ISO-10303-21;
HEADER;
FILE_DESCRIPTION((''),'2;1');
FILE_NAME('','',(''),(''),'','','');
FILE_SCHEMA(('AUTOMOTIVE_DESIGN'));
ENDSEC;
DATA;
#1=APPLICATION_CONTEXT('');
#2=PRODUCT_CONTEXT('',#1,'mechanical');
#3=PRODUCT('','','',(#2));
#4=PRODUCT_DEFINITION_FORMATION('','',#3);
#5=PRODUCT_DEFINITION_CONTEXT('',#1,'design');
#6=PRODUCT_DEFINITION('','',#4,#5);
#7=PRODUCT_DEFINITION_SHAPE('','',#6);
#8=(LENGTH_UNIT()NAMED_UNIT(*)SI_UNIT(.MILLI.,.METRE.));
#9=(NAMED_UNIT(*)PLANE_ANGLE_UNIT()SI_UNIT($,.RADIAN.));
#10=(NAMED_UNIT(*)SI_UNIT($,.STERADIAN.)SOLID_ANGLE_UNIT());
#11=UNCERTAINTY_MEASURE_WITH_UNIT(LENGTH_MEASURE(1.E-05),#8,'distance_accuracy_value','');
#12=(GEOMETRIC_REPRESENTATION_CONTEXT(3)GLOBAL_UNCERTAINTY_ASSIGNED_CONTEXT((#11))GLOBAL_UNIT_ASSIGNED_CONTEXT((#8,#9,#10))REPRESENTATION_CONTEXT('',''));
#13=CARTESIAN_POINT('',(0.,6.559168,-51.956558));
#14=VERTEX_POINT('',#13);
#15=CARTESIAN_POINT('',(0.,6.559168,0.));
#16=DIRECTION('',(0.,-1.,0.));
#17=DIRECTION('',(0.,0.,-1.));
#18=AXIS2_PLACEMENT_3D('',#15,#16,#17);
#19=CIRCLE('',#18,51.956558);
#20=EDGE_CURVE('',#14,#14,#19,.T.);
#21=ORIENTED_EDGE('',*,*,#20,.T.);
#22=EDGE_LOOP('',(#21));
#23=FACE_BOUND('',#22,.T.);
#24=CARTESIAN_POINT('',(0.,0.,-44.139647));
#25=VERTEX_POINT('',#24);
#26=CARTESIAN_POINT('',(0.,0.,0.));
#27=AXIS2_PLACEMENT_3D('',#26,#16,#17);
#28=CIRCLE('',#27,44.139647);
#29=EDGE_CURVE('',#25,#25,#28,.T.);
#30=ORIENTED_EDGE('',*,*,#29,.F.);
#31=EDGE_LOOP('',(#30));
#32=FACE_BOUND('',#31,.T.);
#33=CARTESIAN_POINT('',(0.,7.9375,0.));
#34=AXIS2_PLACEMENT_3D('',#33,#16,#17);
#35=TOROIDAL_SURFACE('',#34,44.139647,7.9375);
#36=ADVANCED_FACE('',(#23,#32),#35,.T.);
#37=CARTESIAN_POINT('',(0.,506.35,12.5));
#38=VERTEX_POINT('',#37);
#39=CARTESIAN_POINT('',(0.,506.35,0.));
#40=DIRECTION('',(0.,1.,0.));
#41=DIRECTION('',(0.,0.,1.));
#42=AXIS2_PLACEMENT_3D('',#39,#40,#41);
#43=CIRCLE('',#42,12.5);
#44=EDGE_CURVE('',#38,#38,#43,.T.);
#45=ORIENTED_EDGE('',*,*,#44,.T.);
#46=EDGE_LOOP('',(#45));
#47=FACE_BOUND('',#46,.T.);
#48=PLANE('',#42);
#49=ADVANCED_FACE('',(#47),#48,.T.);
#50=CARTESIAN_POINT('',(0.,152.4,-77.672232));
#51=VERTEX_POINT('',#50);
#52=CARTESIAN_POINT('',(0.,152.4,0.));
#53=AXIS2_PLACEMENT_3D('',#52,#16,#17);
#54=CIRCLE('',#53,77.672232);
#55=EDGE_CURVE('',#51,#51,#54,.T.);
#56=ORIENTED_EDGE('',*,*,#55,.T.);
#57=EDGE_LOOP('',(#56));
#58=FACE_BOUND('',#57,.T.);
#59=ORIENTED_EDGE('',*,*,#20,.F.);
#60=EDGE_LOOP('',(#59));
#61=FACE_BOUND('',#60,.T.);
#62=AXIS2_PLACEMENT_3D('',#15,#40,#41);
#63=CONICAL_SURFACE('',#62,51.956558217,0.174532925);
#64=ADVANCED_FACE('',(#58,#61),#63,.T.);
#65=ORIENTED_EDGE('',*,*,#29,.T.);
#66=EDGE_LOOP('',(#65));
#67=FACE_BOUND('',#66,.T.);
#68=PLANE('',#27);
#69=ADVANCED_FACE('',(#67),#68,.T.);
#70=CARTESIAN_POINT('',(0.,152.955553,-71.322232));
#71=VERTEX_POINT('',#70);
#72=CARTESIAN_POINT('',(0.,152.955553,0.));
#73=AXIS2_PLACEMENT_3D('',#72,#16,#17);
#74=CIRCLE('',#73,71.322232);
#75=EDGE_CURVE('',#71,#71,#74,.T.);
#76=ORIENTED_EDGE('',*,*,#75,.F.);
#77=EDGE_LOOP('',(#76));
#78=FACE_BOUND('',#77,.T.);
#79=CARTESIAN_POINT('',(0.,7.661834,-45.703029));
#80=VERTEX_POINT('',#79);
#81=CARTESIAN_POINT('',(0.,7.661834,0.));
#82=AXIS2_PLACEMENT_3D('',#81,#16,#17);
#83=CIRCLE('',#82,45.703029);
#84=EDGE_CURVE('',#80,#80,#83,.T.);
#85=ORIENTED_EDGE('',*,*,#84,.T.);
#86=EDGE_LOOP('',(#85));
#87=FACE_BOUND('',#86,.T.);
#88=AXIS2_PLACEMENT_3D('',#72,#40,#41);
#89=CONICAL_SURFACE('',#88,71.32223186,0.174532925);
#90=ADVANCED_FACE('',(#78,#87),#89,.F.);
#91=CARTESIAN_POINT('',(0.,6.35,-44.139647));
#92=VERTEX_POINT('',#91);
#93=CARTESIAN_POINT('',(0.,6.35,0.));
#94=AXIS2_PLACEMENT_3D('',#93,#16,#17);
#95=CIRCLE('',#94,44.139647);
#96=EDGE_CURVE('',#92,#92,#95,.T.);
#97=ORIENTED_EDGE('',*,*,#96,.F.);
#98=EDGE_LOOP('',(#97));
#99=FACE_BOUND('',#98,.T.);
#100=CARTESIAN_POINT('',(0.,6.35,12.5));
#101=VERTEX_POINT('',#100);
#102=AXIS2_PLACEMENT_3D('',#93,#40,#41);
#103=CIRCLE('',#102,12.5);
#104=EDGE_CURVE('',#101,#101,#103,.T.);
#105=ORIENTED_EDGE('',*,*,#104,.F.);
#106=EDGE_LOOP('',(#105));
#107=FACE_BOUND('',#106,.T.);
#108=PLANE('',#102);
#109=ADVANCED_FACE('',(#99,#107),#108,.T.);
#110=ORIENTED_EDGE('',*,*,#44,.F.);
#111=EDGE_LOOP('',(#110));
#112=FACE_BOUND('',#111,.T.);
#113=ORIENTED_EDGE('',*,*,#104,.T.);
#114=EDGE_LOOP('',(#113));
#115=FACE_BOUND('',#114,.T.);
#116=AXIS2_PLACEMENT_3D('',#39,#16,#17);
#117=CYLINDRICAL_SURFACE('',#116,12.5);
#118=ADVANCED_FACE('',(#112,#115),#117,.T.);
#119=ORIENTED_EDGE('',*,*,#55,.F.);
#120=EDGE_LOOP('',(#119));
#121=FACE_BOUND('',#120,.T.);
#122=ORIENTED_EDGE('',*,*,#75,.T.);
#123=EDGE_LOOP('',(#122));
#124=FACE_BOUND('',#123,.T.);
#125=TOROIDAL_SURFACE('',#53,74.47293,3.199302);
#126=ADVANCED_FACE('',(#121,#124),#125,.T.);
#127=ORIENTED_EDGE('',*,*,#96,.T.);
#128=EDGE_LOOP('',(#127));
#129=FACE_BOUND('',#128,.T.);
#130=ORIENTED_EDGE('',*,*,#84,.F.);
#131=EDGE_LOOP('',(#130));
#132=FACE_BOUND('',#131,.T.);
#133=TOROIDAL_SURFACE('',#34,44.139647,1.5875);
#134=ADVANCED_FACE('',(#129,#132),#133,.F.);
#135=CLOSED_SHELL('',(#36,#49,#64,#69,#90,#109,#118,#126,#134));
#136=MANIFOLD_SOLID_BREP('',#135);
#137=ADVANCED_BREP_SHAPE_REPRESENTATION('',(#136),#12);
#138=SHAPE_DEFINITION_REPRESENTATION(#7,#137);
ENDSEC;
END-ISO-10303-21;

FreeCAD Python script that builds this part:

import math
import FreeCAD as App
import Part
import Sketcher

V = App.Vector
Q = App.Units.Quantity

doc = App.newDocument("Part")
body = doc.addObject("PartDesign::Body", "Body")

# Sketch on XY plane
sketch1 = body.newObject("Sketcher::SketchObject", "Sketch")
sketch1.AttachmentSupport = (doc.getObject("XY_Plane"), [""])
sketch1.MapMode = "FlatFace"
sketch1.addGeometry(Part.LineSegment(V(0, 0, 0), V(44.139647, 0, 0)), False)
sketch1.addGeometry(Part.ArcOfCircle(Part.Circle(V(44.139647, 7.9375, 0), V(0, 0, 1), 7.9375), math.radians(-90), math.radians(-10)), False)
sketch1.addGeometry(Part.LineSegment(V(51.956558, 6.559168, 0), V(77.672232, 152.4, 0)), False)
sketch1.addGeometry(Part.ArcOfCircle(Part.Circle(V(74.47293, 152.4, 0), V(0, 0, 1), 3.199302), math.radians(0), math.radians(170)), False)
sketch1.addGeometry(Part.LineSegment(V(71.322232, 152.955553, 0), V(45.703029, 7.661834, 0)), False)
sketch1.addGeometry(Part.ArcOfCircle(Part.Circle(V(44.139647, 7.9375, 0), V(0, 0, 1), 1.5875), math.radians(-90), math.radians(-10)), False)
sketch1.addGeometry(Part.LineSegment(V(44.139647, 6.35, 0), V(0, 6.35, 0)), False)
sketch1.addGeometry(Part.LineSegment(V(0, 6.35, 0), V(0, 0, 0)), False)
sketch1.addConstraint(Sketcher.Constraint("Tangent", 0, 2, 1, 1))
sketch1.addConstraint(Sketcher.Constraint("Tangent", 1, 2, 2, 1))
sketch1.addConstraint(Sketcher.Constraint("Coincident", 2, 2, 3, 1))
sketch1.addConstraint(Sketcher.Constraint("Tangent", 3, 2, 4, 1))
sketch1.addConstraint(Sketcher.Constraint("Tangent", 4, 2, 5, 2))
sketch1.addConstraint(Sketcher.Constraint("Tangent", 5, 1, 6, 1))
sketch1.addConstraint(Sketcher.Constraint("Coincident", 6, 2, 7, 1))
sketch1.addConstraint(Sketcher.Constraint("Coincident", 7, 2, 0, 1))
sketch1.addConstraint(Sketcher.Constraint("Horizontal", 0))
sketch1.addConstraint(Sketcher.Constraint("Horizontal", 6))
sketch1.addConstraint(Sketcher.Constraint("Vertical", 7))
sketch1.addConstraint(Sketcher.Constraint("Coincident", 7, 2, -1, 1))
sketch1.addConstraint(Sketcher.Constraint("Coincident", 5, 3, 1, 3))
sketch1.addConstraint(Sketcher.Constraint("Parallel", 2, 4))
sketch1.addConstraint(Sketcher.Constraint("Horizontal", 3, 3, 2, 2))
sketch1.addConstraint(Sketcher.Constraint("DistanceY", -1, 1, 3, 3, Q("6 in")))
sketch1.addConstraint(Sketcher.Constraint("Angle", 2, Q("80 deg")))
sketch1.addConstraint(Sketcher.Constraint("Radius", 1, Q("0.3125 in")))
sketch1.addConstraint(Sketcher.Constraint("Radius", 5, Q("0.0625 in")))
sketch1.addConstraint(Sketcher.Constraint("DistanceX", 0, 1, 0, 2, Q("44.139647 mm")))
revolution = body.newObject("PartDesign::Revolution", "Revolution")
revolution.Profile = sketch1
revolution.ReferenceAxis = (sketch1, ["V_Axis"])
revolution.Angle = 360

# Sketch on XZ plane
sketch2 = body.newObject("Sketcher::SketchObject", "Sketch001")
sketch2.AttachmentSupport = (doc.getObject("XZ_Plane"), [""])
sketch2.MapMode = "FlatFace"
sketch2.AttachmentOffset = App.Placement(V(0, 0, -0.25 * 25.4), App.Rotation())
sketch2.addGeometry(Part.Circle(V(0, 0, 0), V(0, 0, 1), 12.5), False)
sketch2.addConstraint(Sketcher.Constraint("Coincident", 0, 3, -1, 1))
sketch2.addConstraint(Sketcher.Constraint("Diameter", 0, Q("25 mm")))
pad1 = body.newObject("PartDesign::Pad", "Pad")
pad1.Profile = sketch2
pad1.Length = 500
pad1.Reversed = True

doc.recompute()
